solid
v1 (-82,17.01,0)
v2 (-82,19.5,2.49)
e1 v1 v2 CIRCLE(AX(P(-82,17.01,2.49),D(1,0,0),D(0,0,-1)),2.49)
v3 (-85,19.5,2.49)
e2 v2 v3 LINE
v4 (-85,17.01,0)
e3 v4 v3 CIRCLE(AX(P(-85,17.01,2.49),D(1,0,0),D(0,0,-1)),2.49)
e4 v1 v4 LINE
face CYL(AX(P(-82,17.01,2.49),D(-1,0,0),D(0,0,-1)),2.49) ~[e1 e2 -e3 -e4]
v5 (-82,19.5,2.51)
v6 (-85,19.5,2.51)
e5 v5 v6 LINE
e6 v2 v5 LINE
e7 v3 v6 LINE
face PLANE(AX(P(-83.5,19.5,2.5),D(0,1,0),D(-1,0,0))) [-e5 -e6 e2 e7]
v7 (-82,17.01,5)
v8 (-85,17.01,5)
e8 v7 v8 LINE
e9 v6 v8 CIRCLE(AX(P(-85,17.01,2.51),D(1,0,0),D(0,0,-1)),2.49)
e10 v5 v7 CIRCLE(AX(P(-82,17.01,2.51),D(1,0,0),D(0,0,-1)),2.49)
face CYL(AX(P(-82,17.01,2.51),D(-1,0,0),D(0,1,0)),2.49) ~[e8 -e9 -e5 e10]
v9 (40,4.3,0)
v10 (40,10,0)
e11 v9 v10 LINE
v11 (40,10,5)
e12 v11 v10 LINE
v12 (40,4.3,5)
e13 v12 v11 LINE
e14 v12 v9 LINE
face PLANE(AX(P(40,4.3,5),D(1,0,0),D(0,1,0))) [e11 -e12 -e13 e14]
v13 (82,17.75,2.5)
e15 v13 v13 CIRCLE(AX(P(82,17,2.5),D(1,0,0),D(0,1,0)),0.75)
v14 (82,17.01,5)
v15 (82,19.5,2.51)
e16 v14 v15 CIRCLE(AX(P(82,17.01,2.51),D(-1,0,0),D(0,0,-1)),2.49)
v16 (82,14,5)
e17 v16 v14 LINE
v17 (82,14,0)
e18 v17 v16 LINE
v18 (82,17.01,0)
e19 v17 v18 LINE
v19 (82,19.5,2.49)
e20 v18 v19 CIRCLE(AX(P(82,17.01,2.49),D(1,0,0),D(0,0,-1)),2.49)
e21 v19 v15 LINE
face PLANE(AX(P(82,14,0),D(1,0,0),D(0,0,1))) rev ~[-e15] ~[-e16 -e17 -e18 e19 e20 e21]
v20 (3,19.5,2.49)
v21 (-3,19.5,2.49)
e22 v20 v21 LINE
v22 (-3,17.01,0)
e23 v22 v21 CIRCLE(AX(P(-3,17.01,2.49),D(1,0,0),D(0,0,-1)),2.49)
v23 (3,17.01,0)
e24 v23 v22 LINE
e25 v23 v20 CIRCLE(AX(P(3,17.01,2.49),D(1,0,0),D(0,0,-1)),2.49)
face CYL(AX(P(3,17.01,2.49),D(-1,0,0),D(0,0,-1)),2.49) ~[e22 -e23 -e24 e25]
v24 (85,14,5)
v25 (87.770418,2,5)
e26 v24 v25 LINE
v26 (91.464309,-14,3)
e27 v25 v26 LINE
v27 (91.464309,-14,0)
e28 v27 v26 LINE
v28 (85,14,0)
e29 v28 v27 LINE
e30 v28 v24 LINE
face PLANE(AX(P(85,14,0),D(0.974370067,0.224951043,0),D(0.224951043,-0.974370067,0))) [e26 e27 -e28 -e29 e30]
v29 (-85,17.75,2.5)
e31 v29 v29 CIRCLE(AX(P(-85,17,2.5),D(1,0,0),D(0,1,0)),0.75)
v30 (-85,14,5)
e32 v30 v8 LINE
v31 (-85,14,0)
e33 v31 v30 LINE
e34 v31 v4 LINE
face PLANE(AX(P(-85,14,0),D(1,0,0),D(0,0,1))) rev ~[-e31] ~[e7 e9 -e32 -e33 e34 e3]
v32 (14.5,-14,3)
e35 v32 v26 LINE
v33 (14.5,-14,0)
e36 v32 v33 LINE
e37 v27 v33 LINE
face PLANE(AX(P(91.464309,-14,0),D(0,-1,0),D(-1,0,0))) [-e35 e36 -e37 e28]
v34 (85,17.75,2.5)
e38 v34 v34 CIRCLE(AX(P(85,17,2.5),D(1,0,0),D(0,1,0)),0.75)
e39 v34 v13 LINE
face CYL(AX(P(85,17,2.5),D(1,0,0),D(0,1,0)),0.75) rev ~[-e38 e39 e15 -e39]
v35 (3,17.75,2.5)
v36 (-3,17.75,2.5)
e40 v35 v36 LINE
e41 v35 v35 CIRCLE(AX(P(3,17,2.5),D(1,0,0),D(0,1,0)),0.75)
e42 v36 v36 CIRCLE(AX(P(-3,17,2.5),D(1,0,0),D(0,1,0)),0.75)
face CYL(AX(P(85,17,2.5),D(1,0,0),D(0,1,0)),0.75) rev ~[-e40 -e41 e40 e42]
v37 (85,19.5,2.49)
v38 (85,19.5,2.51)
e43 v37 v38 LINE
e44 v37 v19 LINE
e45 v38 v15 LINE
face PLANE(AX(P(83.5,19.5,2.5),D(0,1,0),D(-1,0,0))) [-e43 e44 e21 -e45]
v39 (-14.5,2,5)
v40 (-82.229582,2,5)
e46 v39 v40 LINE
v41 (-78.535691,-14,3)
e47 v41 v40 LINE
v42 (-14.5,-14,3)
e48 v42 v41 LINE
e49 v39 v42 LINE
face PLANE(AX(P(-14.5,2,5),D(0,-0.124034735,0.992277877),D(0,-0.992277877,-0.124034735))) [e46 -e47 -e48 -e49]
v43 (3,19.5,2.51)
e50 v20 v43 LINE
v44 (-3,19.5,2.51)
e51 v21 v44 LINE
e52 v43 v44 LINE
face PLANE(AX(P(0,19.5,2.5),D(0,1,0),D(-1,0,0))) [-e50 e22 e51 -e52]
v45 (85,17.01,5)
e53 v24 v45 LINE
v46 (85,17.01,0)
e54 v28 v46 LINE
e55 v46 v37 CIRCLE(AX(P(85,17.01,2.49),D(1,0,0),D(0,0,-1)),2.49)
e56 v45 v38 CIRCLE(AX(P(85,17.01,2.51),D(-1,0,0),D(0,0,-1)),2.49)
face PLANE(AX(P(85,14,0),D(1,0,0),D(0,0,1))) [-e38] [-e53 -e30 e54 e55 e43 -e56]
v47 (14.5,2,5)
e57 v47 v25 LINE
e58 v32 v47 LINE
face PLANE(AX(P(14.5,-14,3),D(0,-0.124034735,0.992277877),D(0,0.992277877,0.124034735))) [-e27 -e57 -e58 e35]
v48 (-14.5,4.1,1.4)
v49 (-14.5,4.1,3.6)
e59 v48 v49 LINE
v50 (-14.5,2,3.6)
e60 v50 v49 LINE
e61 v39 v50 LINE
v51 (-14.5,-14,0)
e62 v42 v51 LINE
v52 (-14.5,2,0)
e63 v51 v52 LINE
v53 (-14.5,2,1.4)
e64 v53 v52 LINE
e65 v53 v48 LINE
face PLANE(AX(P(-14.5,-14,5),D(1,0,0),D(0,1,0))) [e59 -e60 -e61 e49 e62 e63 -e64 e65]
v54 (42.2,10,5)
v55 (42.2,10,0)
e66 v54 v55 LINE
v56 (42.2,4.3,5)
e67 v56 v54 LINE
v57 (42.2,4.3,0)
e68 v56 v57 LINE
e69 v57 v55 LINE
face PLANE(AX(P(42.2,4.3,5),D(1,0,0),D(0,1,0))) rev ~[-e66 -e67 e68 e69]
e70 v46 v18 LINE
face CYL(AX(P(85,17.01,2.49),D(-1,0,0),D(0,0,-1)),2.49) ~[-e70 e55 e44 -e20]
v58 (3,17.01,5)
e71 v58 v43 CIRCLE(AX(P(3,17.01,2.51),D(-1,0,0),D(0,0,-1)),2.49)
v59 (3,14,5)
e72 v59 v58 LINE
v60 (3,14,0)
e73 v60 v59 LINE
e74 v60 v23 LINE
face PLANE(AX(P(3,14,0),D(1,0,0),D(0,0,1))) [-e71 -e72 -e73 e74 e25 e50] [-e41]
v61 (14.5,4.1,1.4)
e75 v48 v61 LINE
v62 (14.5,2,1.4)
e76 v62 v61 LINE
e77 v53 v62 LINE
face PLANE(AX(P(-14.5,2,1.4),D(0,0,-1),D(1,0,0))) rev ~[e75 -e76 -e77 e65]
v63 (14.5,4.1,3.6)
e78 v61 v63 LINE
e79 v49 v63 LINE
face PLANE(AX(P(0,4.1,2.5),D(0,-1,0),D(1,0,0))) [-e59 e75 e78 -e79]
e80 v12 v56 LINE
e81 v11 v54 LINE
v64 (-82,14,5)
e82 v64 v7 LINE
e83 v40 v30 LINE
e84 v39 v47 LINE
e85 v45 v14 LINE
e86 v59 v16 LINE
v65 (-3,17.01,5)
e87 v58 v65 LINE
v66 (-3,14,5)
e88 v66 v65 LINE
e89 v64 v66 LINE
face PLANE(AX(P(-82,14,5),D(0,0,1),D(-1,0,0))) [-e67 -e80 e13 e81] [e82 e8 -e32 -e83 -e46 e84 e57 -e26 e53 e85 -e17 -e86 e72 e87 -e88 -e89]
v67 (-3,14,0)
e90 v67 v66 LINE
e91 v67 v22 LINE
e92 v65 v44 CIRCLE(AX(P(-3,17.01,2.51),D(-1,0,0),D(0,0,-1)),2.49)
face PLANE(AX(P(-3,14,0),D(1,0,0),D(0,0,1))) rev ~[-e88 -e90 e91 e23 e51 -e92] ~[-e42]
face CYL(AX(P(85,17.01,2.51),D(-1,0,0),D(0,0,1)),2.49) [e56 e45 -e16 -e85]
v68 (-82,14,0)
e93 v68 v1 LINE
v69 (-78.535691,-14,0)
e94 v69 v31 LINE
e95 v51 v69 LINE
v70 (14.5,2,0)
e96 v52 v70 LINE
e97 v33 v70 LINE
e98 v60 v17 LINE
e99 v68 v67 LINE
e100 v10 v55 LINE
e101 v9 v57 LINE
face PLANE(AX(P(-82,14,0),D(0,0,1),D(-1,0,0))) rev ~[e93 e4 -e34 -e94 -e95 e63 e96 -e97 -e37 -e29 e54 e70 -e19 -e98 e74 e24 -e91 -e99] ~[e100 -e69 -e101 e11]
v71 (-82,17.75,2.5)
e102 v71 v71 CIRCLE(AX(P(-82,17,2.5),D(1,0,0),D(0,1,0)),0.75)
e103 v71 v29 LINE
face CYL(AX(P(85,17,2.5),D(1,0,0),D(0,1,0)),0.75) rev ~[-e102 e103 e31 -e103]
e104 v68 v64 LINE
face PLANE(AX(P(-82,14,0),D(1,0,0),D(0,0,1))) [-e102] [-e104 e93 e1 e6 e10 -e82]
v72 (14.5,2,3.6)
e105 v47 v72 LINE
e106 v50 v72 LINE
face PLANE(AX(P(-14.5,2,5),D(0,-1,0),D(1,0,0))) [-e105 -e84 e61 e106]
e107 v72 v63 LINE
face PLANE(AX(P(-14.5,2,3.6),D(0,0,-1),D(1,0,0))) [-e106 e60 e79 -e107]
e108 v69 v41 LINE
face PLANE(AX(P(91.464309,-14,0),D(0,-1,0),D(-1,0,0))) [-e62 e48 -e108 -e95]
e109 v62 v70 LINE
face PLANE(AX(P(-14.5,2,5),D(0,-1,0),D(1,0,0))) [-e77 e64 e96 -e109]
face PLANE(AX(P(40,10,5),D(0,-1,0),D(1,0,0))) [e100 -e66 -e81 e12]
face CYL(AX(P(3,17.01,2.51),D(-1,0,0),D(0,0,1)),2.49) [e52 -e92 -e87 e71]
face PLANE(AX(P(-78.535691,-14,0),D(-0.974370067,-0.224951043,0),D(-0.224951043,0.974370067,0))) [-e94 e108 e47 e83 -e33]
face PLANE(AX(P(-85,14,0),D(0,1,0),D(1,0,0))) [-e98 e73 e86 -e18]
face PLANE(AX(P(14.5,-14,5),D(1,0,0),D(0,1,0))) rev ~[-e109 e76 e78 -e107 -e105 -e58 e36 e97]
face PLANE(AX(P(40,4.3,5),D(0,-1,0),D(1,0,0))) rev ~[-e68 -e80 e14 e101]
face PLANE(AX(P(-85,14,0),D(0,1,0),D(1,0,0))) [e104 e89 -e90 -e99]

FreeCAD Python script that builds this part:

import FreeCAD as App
import Part
import Sketcher

V = App.Vector
Q = App.Units.Quantity


def edges_at(feature, points):
    """Names of the edges that pass closest to the given points."""
    edges = feature.Shape.Edges
    near = lambda p: min(range(len(edges)), key=lambda i: edges[i].distToShape(Part.Vertex(*p))[0])
    return sorted({f"Edge{near(p) + 1}" for p in points})

doc = App.newDocument("Part")
body = doc.addObject("PartDesign::Body", "Body")

sketch1 = body.newObject("Sketcher::SketchObject", "Sketch")
sketch1.AttachmentSupport = (doc.getObject("XY_Plane"), [""])
sketch1.MapMode = "FlatFace"
sketch1.addGeometry([
    Part.LineSegment(V(85, 14, 0), V(-85, 14, 0)),
    Part.LineSegment(V(-85, 14, 0), V(-79, -14, 0)),
    Part.LineSegment(V(-79, -14, 0), V(91, -14, 0)),
    Part.LineSegment(V(91, -14, 0), V(85, 14, 0)),
], False)
sketch1.addConstraint([
    Sketcher.Constraint("Coincident", 0, 2, 1, 1),
    Sketcher.Constraint("Coincident", 1, 2, 2, 1),
    Sketcher.Constraint("Coincident", 2, 2, 3, 1),
    Sketcher.Constraint("Coincident", 3, 2, 0, 1),
    Sketcher.Constraint("Horizontal", 0),
    Sketcher.Constraint("Horizontal", 2),
    Sketcher.Constraint("Parallel", 1, 3),
    Sketcher.Constraint("DistanceX", 0, 2, 0, 1, Q("170 mm")),
    Sketcher.Constraint("Angle", 1, Q("-77.000001 deg")),
    Sketcher.Constraint("DistanceX", 0, 2, -1, 1, Q("85 mm")),
    Sketcher.Constraint("DistanceY", -1, 1, 0, 2, Q("14 mm")),
    Sketcher.Constraint("DistanceY", 1, 2, -1, 1, Q("14 mm")),
])
pad1 = body.newObject("PartDesign::Pad", "Pad")
pad1.Profile = sketch1
pad1.Length = 5

sketch2 = body.newObject("Sketcher::SketchObject", "Sketch001")
sketch2.AttachmentSupport = (doc.getObject("XY_Plane"), [""])
sketch2.MapMode = "FlatFace"
sketch2.AttachmentOffset = App.Placement(V(0, 0, 5), App.Rotation())
sketch2.addGeometry([
    Part.LineSegment(V(-14, 2, 0), V(-14, -14, 0)),
    Part.LineSegment(V(-14, -14, 0), V(14, -14, 0)),
    Part.LineSegment(V(14, -14, 0), V(14, 2, 0)),
    Part.LineSegment(V(14, 2, 0), V(-14, 2, 0)),
], False)
sketch2.addConstraint([
    Sketcher.Constraint("Coincident", 0, 2, 1, 1),
    Sketcher.Constraint("Coincident", 1, 2, 2, 1),
    Sketcher.Constraint("Coincident", 2, 2, 3, 1),
    Sketcher.Constraint("Coincident", 3, 2, 0, 1),
    Sketcher.Constraint("Vertical", 0),
    Sketcher.Constraint("Horizontal", 1),
    Sketcher.Constraint("Vertical", 2),
    Sketcher.Constraint("Horizontal", 3),
    Sketcher.Constraint("DistanceX", 1, 1, 1, 2, Q("29 mm")),
    Sketcher.Constraint("DistanceY", 0, 2, 0, 1, Q("16 mm")),
    Sketcher.Constraint("DistanceY", 0, 2, -1, 1, Q("14 mm")),
    Sketcher.Constraint("DistanceX", 0, 2, -1, 1, Q("14.5 mm")),
])
pocket1 = body.newObject("PartDesign::Pocket", "Pocket")
pocket1.Profile = sketch2
pocket1.Length = 5

sketch3 = body.newObject("Sketcher::SketchObject", "Sketch002")
sketch3.AttachmentSupport = (doc.getObject("XZ_Plane"), [""])
sketch3.MapMode = "FlatFace"
sketch3.AttachmentOffset = App.Placement(V(0, 0, -2), App.Rotation())
sketch3.addGeometry([
    Part.LineSegment(V(-14.5, 3.6, 0), V(-14.5, 1.4, 0)),
    Part.LineSegment(V(-14.5, 1.4, 0), V(14.5, 1.4, 0)),
    Part.LineSegment(V(14.5, 1.4, 0), V(14.5, 3.6, 0)),
    Part.LineSegment(V(14.5, 3.6, 0), V(-14.5, 3.6, 0)),
], False)
sketch3.addConstraint([
    Sketcher.Constraint("Coincident", 0, 2, 1, 1),
    Sketcher.Constraint("Coincident", 1, 2, 2, 1),
    Sketcher.Constraint("Coincident", 2, 2, 3, 1),
    Sketcher.Constraint("Coincident", 3, 2, 0, 1),
    Sketcher.Constraint("Vertical", 0),
    Sketcher.Constraint("Horizontal", 1),
    Sketcher.Constraint("Vertical", 2),
    Sketcher.Constraint("Horizontal", 3),
    Sketcher.Constraint("DistanceX", 1, 1, 1, 2, Q("29 mm")),
    Sketcher.Constraint("DistanceY", 0, 2, 0, 1, Q("2.2 mm")),
    Sketcher.Constraint("DistanceX", 0, 2, -1, 1, Q("14.5 mm")),
    Sketcher.Constraint("DistanceY", -1, 1, 0, 2, Q("1.4 mm")),
])
pocket2 = body.newObject("PartDesign::Pocket", "Pocket001")
pocket2.Profile = sketch3
pocket2.Length = 2.1

sketch4 = body.newObject("Sketcher::SketchObject", "Sketch003")
sketch4.AttachmentSupport = (doc.getObject("YZ_Plane"), [""])
sketch4.MapMode = "FlatFace"
sketch4.AttachmentOffset = App.Placement(V(0, 0, -14.5), App.Rotation())
sketch4.addGeometry([
    Part.LineSegment(V(2, 5, 0), V(-14, 5, 0)),
    Part.LineSegment(V(-14, 5, 0), V(-14, 3, 0)),
    Part.LineSegment(V(-14, 3, 0), V(2, 5, 0)),
], False)
sketch4.addConstraint([
    Sketcher.Constraint("Coincident", 0, 2, 1, 1),
    Sketcher.Constraint("Coincident", 1, 2, 2, 1),
    Sketcher.Constraint("Coincident", 2, 2, 0, 1),
    Sketcher.Constraint("Horizontal", 0),
    Sketcher.Constraint("Vertical", 1),
    Sketcher.Constraint("DistanceX", 0, 2, 0, 1, Q("16 mm")),
    Sketcher.Constraint("DistanceY", 1, 2, 1, 1, Q("2 mm")),
    Sketcher.Constraint("DistanceX", 0, 2, -1, 1, Q("14 mm")),
    Sketcher.Constraint("DistanceY", -1, 1, 0, 2, Q("5 mm")),
])
pocket3 = body.newObject("PartDesign::Pocket", "Pocket002")
pocket3.Profile = sketch4
pocket3.Length = 100

sketch5 = body.newObject("Sketcher::SketchObject", "Sketch004")
sketch5.AttachmentSupport = (doc.getObject("YZ_Plane"), [""])
sketch5.MapMode = "FlatFace"
sketch5.AttachmentOffset = App.Placement(V(0, 0, 14.5), App.Rotation())
sketch5.addGeometry([
    Part.LineSegment(V(-14, 5, 0), V(2, 5, 0)),
    Part.LineSegment(V(2, 5, 0), V(-14, 3, 0)),
    Part.LineSegment(V(-14, 3, 0), V(-14, 5, 0)),
], False)
sketch5.addConstraint([
    Sketcher.Constraint("Coincident", 0, 2, 1, 1),
    Sketcher.Constraint("Coincident", 1, 2, 2, 1),
    Sketcher.Constraint("Coincident", 2, 2, 0, 1),
    Sketcher.Constraint("Horizontal", 0),
    Sketcher.Constraint("Vertical", 2),
    Sketcher.Constraint("DistanceX", 0, 1, 0, 2, Q("16 mm")),
    Sketcher.Constraint("DistanceY", 2, 1, 2, 2, Q("2 mm")),
    Sketcher.Constraint("DistanceX", -1, 1, 0, 2, Q("2 mm")),
    Sketcher.Constraint("DistanceY", -1, 1, 0, 2, Q("5 mm")),
])
pocket4 = body.newObject("PartDesign::Pocket", "Pocket003")
pocket4.Profile = sketch5
pocket4.Length = 100
pocket4.Reversed = True

sketch6 = body.newObject("Sketcher::SketchObject", "Sketch005")
sketch6.AttachmentSupport = (doc.getObject("XZ_Plane"), [""])
sketch6.MapMode = "FlatFace"
sketch6.AttachmentOffset = App.Placement(V(0, 0, -14), App.Rotation())
sketch6.addGeometry([
    Part.LineSegment(V(-82, 5, 0), V(-82, 0, 0)),
    Part.LineSegment(V(-82, 0, 0), V(-85, 0, 0)),
    Part.LineSegment(V(-85, 0, 0), V(-85, 5, 0)),
    Part.LineSegment(V(-85, 5, 0), V(-82, 5, 0)),
    Part.LineSegment(V(85, 5, 0), V(85, 0, 0)),
    Part.LineSegment(V(85, 0, 0), V(82, 0, 0)),
    Part.LineSegment(V(82, 0, 0), V(82, 5, 0)),
    Part.LineSegment(V(82, 5, 0), V(85, 5, 0)),
    Part.LineSegment(V(3, 5, 0), V(3, 0, 0)),
    Part.LineSegment(V(3, 0, 0), V(-3, 0, 0)),
    Part.LineSegment(V(-3, 0, 0), V(-3, 5, 0)),
    Part.LineSegment(V(-3, 5, 0), V(3, 5, 0)),
], False)
sketch6.addConstraint([
    Sketcher.Constraint("Coincident", 0, 2, 1, 1),
    Sketcher.Constraint("Coincident", 1, 2, 2, 1),
    Sketcher.Constraint("Coincident", 2, 2, 3, 1),
    Sketcher.Constraint("Coincident", 3, 2, 0, 1),
    Sketcher.Constraint("Coincident", 4, 2, 5, 1),
    Sketcher.Constraint("Coincident", 5, 2, 6, 1),
    Sketcher.Constraint("Coincident", 6, 2, 7, 1),
    Sketcher.Constraint("Coincident", 7, 2, 4, 1),
    Sketcher.Constraint("Coincident", 8, 2, 9, 1),
    Sketcher.Constraint("Coincident", 9, 2, 10, 1),
    Sketcher.Constraint("Coincident", 10, 2, 11, 1),
    Sketcher.Constraint("Coincident", 11, 2, 8, 1),
    Sketcher.Constraint("Vertical", 0),
    Sketcher.Constraint("Horizontal", 1),
    Sketcher.Constraint("Vertical", 2),
    Sketcher.Constraint("Horizontal", 3),
    Sketcher.Constraint("Vertical", 4),
    Sketcher.Constraint("Horizontal", 5),
    Sketcher.Constraint("Vertical", 6),
    Sketcher.Constraint("Horizontal", 7),
    Sketcher.Constraint("Vertical", 8),
    Sketcher.Constraint("Horizontal", 9),
    Sketcher.Constraint("Vertical", 10),
    Sketcher.Constraint("Horizontal", 11),
    Sketcher.Constraint("Symmetric", 1, 2, 4, 2, -1, 1),
    Sketcher.Constraint("Symmetric", 8, 2, 9, 2, -1, 1),
    Sketcher.Constraint("Symmetric", 0, 2, 5, 2, -2),
    Sketcher.Constraint("Horizontal", 3, 2, 6, 2),
    Sketcher.Constraint("Horizontal", 7, 2, 10, 2),
    Sketcher.Constraint("DistanceX", 1, 2, 1, 1, Q("3 mm")),
    Sketcher.Constraint("DistanceX", 9, 2, 9, 1, Q("6 mm")),
    Sketcher.Constraint("DistanceY", 0, 2, 0, 1, Q("5 mm")),
    Sketcher.Constraint("DistanceX", 0, 2, -1, 1, Q("82 mm")),
])
pad2 = body.newObject("PartDesign::Pad", "Pad001")
pad2.Profile = sketch6
pad2.Length = 5.5
pad2.Reversed = True

sketch7 = body.newObject("Sketcher::SketchObject", "Sketch006")
sketch7.AttachmentSupport = (doc.getObject("XY_Plane"), [""])
sketch7.MapMode = "FlatFace"
sketch7.AttachmentOffset = App.Placement(V(0, 0, 5), App.Rotation())
sketch7.addGeometry([
    Part.LineSegment(V(40, 10, 0), V(40, 4.3, 0)),
    Part.LineSegment(V(40, 4.3, 0), V(42.2, 4.3, 0)),
    Part.LineSegment(V(42.2, 4.3, 0), V(42.2, 10, 0)),
    Part.LineSegment(V(42.2, 10, 0), V(40, 10, 0)),
], False)
sketch7.addConstraint([
    Sketcher.Constraint("Coincident", 0, 2, 1, 1),
    Sketcher.Constraint("Coincident", 1, 2, 2, 1),
    Sketcher.Constraint("Coincident", 2, 2, 3, 1),
    Sketcher.Constraint("Coincident", 3, 2, 0, 1),
    Sketcher.Constraint("Vertical", 0),
    Sketcher.Constraint("Horizontal", 1),
    Sketcher.Constraint("Vertical", 2),
    Sketcher.Constraint("Horizontal", 3),
    Sketcher.Constraint("DistanceX", 1, 1, 1, 2, Q("2.2 mm")),
    Sketcher.Constraint("DistanceY", 0, 2, 0, 1, Q("5.7 mm")),
    Sketcher.Constraint("DistanceX", -1, 1, 0, 2, Q("40 mm")),
    Sketcher.Constraint("DistanceY", -1, 1, 2, 2, Q("10 mm")),
])
pocket5 = body.newObject("PartDesign::Pocket", "Pocket004")
pocket5.Profile = sketch7
pocket5.Length = 5

sketch8 = body.newObject("Sketcher::SketchObject", "Sketch007")
sketch8.AttachmentSupport = (doc.getObject("YZ_Plane"), [""])
sketch8.MapMode = "FlatFace"
sketch8.AttachmentOffset = App.Placement(V(0, 0, 85), App.Rotation())
sketch8.addGeometry(Part.Circle(V(17, 2.5, 0), V(0, 0, 1), 0.8), False)
sketch8.addConstraint([
    Sketcher.Constraint("Diameter", 0, Q("1.5 mm")),
    Sketcher.Constraint("DistanceX", -1, 1, 0, 3, Q("17 mm")),
    Sketcher.Constraint("DistanceY", -1, 1, 0, 3, Q("2.5 mm")),
])
pocket6 = body.newObject("PartDesign::Pocket", "Pocket005")
pocket6.Profile = sketch8
pocket6.Length = 200
doc.recompute()

fillet = body.newObject("PartDesign::Fillet", "Fillet")
fillet.Base = (pocket6, edges_at(pocket6, [
    (83.5, 19.5, 0),
    (83.5, 19.5, 5),
    (0, 19.5, 0),
    (0, 19.5, 5),
    (-83.5, 19.5, 0),
    (-83.5, 19.5, 5),
]))
fillet.Radius = 2.49

doc.recompute()
